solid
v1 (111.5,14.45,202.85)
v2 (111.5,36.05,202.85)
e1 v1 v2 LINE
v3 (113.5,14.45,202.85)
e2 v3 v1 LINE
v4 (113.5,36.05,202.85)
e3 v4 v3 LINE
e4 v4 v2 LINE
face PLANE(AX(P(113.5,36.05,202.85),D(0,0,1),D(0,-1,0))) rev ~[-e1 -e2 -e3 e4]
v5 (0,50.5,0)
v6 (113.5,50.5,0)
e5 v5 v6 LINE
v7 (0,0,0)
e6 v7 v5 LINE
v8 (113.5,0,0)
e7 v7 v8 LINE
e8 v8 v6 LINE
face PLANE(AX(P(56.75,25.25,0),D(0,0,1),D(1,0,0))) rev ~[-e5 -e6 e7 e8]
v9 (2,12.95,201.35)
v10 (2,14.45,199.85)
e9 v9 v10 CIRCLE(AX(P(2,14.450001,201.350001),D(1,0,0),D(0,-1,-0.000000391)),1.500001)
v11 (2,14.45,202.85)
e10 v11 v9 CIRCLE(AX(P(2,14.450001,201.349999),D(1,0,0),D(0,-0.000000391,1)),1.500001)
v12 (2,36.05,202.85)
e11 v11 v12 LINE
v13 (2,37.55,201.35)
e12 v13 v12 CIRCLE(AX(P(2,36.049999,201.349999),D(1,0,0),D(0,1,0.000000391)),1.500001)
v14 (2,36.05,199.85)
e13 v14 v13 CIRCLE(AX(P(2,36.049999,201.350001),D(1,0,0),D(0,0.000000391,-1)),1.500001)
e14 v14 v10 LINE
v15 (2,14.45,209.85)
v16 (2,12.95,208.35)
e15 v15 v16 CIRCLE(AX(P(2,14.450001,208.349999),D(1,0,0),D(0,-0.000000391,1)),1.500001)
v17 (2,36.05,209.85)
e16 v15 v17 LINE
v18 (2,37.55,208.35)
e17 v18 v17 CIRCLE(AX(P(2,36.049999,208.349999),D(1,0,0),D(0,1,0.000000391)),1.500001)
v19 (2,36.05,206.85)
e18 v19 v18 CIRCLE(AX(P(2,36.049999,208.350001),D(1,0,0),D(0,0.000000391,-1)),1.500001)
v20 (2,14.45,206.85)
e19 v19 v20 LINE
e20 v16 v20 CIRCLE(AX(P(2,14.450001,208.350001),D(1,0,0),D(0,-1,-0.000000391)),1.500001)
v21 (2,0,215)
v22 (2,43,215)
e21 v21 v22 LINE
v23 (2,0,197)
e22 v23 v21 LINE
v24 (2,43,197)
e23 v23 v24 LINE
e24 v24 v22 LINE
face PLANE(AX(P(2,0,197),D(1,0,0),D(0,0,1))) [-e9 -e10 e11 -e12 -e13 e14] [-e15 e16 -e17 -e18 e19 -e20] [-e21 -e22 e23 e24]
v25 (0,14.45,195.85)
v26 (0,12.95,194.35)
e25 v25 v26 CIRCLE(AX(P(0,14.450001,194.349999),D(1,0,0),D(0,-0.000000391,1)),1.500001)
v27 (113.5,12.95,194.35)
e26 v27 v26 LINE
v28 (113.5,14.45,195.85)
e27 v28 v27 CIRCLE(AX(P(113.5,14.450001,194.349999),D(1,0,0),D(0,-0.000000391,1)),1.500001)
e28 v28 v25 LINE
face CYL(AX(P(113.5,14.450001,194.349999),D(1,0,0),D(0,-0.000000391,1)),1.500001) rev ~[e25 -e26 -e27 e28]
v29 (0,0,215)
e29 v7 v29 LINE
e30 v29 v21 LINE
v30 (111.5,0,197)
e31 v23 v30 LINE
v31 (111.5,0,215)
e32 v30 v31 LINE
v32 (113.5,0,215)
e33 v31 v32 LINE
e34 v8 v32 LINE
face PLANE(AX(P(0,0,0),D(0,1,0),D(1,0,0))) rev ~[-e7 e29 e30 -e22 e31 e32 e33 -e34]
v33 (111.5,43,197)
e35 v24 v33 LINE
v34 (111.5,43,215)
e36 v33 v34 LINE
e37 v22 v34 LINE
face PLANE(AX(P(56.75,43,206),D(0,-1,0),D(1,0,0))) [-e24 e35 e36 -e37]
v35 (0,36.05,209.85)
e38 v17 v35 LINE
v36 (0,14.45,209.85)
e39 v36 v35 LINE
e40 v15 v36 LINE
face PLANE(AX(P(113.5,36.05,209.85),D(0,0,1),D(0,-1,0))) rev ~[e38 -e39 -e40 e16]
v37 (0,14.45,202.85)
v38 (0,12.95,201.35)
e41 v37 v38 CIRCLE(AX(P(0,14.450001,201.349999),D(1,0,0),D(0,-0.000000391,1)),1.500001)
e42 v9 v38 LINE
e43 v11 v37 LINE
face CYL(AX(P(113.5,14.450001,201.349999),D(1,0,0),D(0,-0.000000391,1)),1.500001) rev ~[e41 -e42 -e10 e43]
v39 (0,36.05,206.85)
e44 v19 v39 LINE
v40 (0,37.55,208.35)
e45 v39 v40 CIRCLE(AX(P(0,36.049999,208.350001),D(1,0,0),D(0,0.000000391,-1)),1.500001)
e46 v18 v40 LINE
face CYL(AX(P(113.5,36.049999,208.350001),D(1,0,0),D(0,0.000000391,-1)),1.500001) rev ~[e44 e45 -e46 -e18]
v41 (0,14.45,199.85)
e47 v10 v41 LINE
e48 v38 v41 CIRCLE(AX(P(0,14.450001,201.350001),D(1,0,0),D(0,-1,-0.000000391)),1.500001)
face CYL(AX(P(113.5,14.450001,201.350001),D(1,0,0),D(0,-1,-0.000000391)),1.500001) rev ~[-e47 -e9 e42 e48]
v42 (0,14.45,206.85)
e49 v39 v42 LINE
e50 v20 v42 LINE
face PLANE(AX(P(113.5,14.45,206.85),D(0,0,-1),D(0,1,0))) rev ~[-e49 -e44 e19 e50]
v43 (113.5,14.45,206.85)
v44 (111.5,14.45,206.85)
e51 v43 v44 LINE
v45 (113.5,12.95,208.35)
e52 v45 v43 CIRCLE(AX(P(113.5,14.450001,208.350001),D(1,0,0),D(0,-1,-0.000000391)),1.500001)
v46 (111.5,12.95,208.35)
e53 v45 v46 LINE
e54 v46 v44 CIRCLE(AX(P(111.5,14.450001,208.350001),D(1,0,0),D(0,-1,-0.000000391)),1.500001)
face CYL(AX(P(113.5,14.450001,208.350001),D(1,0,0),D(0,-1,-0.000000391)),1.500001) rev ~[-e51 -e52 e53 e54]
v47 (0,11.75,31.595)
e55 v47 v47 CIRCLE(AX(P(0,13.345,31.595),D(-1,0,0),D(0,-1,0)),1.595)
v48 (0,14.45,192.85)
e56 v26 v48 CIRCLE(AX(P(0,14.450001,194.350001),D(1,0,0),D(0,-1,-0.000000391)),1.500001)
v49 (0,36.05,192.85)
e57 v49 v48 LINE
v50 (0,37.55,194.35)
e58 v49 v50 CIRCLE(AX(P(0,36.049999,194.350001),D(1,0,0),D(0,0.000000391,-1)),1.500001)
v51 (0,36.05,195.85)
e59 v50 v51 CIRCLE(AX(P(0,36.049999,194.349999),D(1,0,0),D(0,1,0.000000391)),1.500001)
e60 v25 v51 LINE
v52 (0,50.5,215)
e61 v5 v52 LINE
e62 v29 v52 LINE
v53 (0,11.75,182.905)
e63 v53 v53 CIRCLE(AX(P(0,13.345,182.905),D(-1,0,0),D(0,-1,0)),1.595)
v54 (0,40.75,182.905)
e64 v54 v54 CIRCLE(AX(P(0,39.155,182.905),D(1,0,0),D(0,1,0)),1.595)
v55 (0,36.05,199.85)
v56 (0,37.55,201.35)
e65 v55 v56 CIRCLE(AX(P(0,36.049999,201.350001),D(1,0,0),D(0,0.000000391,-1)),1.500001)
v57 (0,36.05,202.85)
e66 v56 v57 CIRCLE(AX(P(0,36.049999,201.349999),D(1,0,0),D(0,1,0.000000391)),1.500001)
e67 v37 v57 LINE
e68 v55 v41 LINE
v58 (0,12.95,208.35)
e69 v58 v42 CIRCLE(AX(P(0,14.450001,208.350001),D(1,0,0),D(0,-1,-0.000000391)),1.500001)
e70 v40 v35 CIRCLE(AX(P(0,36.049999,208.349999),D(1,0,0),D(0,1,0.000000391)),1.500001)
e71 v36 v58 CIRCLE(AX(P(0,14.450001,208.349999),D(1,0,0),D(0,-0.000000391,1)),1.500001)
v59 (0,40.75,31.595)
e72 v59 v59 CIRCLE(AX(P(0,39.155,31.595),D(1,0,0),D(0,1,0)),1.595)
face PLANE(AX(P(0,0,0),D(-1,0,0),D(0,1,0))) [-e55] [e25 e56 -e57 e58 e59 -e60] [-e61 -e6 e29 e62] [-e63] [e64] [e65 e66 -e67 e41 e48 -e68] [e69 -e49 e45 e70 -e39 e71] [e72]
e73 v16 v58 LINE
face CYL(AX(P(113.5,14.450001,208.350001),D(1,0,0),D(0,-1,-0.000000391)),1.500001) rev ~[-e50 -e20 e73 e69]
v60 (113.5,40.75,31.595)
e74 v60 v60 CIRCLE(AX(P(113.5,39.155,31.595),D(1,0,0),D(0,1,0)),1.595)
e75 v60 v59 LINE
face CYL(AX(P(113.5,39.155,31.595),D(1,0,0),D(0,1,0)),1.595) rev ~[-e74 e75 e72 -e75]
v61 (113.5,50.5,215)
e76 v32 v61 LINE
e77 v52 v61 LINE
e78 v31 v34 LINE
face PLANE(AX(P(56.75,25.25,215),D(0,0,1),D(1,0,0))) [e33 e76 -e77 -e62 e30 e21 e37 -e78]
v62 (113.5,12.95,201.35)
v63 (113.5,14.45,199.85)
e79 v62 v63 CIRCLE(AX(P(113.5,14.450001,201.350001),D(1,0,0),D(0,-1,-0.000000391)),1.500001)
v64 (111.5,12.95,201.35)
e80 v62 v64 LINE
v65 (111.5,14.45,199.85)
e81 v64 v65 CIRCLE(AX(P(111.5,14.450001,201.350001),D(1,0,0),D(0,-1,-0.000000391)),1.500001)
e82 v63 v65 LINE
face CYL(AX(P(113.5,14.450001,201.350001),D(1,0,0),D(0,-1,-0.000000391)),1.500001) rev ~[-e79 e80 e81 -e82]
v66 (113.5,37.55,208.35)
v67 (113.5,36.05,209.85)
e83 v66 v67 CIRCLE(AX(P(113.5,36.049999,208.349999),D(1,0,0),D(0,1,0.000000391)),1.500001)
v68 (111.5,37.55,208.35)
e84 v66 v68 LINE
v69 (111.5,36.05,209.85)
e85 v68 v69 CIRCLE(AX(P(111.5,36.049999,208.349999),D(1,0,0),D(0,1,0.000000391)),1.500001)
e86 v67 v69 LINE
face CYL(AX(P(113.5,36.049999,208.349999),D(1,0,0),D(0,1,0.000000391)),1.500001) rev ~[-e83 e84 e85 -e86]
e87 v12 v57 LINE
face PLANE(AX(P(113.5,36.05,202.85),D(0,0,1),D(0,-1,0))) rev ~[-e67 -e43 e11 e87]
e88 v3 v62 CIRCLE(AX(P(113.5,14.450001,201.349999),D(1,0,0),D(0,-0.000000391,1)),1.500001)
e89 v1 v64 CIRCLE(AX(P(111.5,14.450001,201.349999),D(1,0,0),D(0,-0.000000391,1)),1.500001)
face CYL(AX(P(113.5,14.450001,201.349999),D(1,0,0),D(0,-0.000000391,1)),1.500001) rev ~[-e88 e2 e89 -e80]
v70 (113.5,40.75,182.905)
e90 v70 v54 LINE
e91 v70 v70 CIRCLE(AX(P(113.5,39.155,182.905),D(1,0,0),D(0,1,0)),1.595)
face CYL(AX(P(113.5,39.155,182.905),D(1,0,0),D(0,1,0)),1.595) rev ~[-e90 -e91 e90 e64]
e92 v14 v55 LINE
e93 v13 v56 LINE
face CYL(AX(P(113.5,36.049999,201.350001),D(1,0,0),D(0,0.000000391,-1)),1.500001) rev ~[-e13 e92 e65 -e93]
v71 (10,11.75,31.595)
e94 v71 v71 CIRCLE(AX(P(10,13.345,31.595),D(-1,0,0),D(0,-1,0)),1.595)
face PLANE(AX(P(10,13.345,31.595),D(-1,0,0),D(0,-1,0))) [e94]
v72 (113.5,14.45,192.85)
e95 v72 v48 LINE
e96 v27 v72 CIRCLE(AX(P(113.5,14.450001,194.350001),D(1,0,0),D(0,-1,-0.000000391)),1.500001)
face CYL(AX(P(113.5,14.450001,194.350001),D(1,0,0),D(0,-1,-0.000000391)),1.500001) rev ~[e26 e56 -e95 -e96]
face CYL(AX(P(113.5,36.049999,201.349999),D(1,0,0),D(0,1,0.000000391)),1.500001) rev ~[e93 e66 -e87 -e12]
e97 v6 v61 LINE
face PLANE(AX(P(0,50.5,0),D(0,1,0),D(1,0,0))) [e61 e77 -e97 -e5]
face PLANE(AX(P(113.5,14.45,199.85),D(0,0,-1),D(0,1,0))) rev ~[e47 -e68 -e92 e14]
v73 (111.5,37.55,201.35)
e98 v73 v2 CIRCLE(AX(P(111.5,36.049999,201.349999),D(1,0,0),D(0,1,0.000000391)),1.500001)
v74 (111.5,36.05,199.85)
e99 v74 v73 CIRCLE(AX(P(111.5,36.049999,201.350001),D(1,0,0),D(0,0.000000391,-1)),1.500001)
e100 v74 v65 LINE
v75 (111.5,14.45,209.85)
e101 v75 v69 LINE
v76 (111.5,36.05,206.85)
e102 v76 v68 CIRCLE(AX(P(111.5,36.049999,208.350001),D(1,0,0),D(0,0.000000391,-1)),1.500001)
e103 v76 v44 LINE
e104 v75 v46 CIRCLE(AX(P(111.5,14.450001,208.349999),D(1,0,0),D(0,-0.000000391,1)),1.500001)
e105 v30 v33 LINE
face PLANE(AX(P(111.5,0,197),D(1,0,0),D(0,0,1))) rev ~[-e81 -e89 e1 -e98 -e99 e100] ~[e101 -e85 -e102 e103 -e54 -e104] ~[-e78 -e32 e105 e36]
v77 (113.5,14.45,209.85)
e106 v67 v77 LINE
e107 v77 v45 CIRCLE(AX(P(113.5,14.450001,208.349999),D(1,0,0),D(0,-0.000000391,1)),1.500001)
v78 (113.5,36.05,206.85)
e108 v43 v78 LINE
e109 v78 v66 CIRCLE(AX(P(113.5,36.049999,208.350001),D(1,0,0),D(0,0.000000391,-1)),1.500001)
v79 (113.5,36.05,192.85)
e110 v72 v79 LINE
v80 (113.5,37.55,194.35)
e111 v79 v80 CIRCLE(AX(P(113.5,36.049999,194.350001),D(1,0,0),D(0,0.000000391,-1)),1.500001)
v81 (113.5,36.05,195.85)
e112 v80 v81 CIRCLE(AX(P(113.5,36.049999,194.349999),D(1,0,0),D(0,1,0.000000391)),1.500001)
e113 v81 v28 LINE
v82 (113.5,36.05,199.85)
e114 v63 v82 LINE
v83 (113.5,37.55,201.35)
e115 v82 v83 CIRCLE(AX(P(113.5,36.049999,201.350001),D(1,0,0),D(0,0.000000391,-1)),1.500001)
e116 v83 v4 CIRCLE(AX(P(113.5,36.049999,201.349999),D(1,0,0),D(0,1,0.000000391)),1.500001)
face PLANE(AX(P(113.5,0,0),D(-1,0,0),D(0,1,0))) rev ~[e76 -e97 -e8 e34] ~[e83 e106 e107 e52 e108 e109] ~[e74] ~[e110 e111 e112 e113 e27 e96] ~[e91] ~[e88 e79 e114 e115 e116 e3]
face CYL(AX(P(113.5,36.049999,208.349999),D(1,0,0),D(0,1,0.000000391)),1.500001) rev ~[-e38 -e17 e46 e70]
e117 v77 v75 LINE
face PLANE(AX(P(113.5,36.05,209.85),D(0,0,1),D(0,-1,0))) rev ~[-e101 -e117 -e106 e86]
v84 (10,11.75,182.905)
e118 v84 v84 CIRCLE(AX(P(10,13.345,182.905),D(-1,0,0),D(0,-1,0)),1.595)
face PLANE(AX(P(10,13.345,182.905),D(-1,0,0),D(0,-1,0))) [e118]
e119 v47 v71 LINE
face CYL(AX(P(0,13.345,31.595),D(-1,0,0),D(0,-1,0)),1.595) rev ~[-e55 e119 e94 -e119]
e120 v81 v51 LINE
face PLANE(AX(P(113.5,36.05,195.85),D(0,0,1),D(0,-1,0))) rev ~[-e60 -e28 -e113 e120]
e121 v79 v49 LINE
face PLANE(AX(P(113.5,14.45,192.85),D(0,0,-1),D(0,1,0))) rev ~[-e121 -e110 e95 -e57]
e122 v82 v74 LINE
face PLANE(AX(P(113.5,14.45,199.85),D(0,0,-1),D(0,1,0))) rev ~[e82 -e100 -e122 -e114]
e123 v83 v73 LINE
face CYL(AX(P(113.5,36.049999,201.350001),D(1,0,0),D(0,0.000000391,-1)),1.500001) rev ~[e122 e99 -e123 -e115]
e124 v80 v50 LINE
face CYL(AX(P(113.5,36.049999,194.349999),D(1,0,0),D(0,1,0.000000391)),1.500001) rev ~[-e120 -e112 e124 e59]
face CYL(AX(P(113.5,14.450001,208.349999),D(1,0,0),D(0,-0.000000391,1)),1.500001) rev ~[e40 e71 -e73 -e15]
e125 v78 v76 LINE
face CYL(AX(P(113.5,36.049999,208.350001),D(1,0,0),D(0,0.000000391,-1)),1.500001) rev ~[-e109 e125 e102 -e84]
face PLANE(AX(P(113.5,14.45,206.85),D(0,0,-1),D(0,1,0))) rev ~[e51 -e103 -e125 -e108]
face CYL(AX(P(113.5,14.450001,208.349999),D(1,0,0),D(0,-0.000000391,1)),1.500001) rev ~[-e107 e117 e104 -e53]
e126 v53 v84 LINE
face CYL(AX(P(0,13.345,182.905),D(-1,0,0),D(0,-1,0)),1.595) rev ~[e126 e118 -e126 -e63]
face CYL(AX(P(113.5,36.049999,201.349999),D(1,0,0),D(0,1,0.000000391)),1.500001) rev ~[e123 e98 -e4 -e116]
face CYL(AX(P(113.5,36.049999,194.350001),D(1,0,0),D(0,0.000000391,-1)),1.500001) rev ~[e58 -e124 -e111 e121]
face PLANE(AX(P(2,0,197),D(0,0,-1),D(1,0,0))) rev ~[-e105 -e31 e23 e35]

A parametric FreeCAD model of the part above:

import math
import FreeCAD as App
import Part
import Sketcher
from FreeCAD import Vector
Q = App.Units.Quantity

doc = App.newDocument("Part")
body = doc.addObject("PartDesign::Body", "Body")

# Sketch on XY plane
sketch1 = doc.addObject("Sketcher::SketchObject", "Sketch")
body.addObject(sketch1)
sketch1.AttachmentSupport = (doc.XY_Plane, [""])
sketch1.MapMode = "FlatFace"
sketch1.addGeometry(Part.LineSegment(Vector(0, 50, 0), Vector(0, 0, 0)), False)
sketch1.addGeometry(Part.LineSegment(Vector(0, 0, 0), Vector(114, 0, 0)), False)
sketch1.addGeometry(Part.LineSegment(Vector(114, 0, 0), Vector(114, 50, 0)), False)
sketch1.addGeometry(Part.LineSegment(Vector(114, 50, 0), Vector(0, 50, 0)), False)
sketch1.addConstraint(Sketcher.Constraint("Coincident", 0, 2, 1, 1))
sketch1.addConstraint(Sketcher.Constraint("Coincident", 1, 2, 2, 1))
sketch1.addConstraint(Sketcher.Constraint("Coincident", 2, 2, 3, 1))
sketch1.addConstraint(Sketcher.Constraint("Coincident", 3, 2, 0, 1))
sketch1.addConstraint(Sketcher.Constraint("Vertical", 0))
sketch1.addConstraint(Sketcher.Constraint("Horizontal", 1))
sketch1.addConstraint(Sketcher.Constraint("Vertical", 2))
sketch1.addConstraint(Sketcher.Constraint("Horizontal", 3))
sketch1.addConstraint(Sketcher.Constraint("Coincident", 0, 2, -1, 1))
sketch1.addConstraint(Sketcher.Constraint("DistanceX", 1, 1, 1, 2, Q("113.5 mm")))
sketch1.addConstraint(Sketcher.Constraint("DistanceY", 0, 2, 0, 1, Q("50.5 mm")))
pad1 = doc.addObject("PartDesign::Pad", "Pad")
body.addObject(pad1)
pad1.Profile = sketch1
pad1.Length = 215

# Sketch on YZ plane
sketch2 = doc.addObject("Sketcher::SketchObject", "Sketch001")
body.addObject(sketch2)
sketch2.AttachmentSupport = (doc.YZ_Plane, [""])
sketch2.MapMode = "FlatFace"
sketch2.AttachmentOffset = App.Placement(Vector(0, 0, 113.5), App.Rotation())
sketch2.addGeometry(Part.LineSegment(Vector(36, 209.8, 0), Vector(14.4, 209.8, 0)), False)
sketch2.addGeometry(Part.ArcOfCircle(Part.Circle(Vector(14.5, 208.3, 0), Vector(0, 0, 1), 1.5), math.radians(90), math.radians(180)), False)
sketch2.addGeometry(Part.ArcOfCircle(Part.Circle(Vector(14.5, 208.4, 0), Vector(0, 0, 1), 1.5), math.radians(-180), math.radians(-90)), False)
sketch2.addGeometry(Part.LineSegment(Vector(14.4, 206.8, 0), Vector(36, 206.8, 0)), False)
sketch2.addGeometry(Part.ArcOfCircle(Part.Circle(Vector(36, 208.4, 0), Vector(0, 0, 1), 1.5), math.radians(-90), math.radians(0)), False)
sketch2.addGeometry(Part.ArcOfCircle(Part.Circle(Vector(36, 208.3, 0), Vector(0, 0, 1), 1.5), math.radians(0), math.radians(90)), False)
sketch2.addGeometry(Part.ArcOfCircle(Part.Circle(Vector(14.5, 201.4, 0), Vector(0, 0, 1), 1.5), math.radians(-180), math.radians(-90)), False)
sketch2.addGeometry(Part.LineSegment(Vector(14.4, 199.8, 0), Vector(36, 199.8, 0)), False)
sketch2.addGeometry(Part.ArcOfCircle(Part.Circle(Vector(36, 201.4, 0), Vector(0, 0, 1), 1.5), math.radians(-90), math.radians(0)), False)
sketch2.addGeometry(Part.ArcOfCircle(Part.Circle(Vector(36, 201.3, 0), Vector(0, 0, 1), 1.5), math.radians(0), math.radians(90)), False)
sketch2.addGeometry(Part.LineSegment(Vector(36, 202.8, 0), Vector(14.4, 202.8, 0)), False)
sketch2.addGeometry(Part.ArcOfCircle(Part.Circle(Vector(14.5, 201.3, 0), Vector(0, 0, 1), 1.5), math.radians(90), math.radians(180)), False)
sketch2.addGeometry(Part.ArcOfCircle(Part.Circle(Vector(14.5, 194.4, 0), Vector(0, 0, 1), 1.5), math.radians(-180), math.radians(-90)), False)
sketch2.addGeometry(Part.LineSegment(Vector(14.4, 192.8, 0), Vector(36, 192.8, 0)), False)
sketch2.addGeometry(Part.ArcOfCircle(Part.Circle(Vector(36, 194.4, 0), Vector(0, 0, 1), 1.5), math.radians(-90), math.radians(0)), False)
sketch2.addGeometry(Part.ArcOfCircle(Part.Circle(Vector(36, 194.3, 0), Vector(0, 0, 1), 1.5), math.radians(0), math.radians(90)), False)
sketch2.addGeometry(Part.LineSegment(Vector(36, 195.8, 0), Vector(14.4, 195.8, 0)), False)
sketch2.addGeometry(Part.ArcOfCircle(Part.Circle(Vector(14.5, 194.3, 0), Vector(0, 0, 1), 1.5), math.radians(90), math.radians(180)), False)
sketch2.addConstraint(Sketcher.Constraint("Tangent", 0, 2, 1, 1))
sketch2.addConstraint(Sketcher.Constraint("Tangent", 1, 2, 2, 1))
sketch2.addConstraint(Sketcher.Constraint("Tangent", 2, 2, 3, 1))
sketch2.addConstraint(Sketcher.Constraint("Tangent", 3, 2, 4, 1))
sketch2.addConstraint(Sketcher.Constraint("Tangent", 4, 2, 5, 1))
sketch2.addConstraint(Sketcher.Constraint("Tangent", 5, 2, 0, 1))
sketch2.addConstraint(Sketcher.Constraint("Tangent", 6, 2, 7, 1))
sketch2.addConstraint(Sketcher.Constraint("Tangent", 7, 2, 8, 1))
sketch2.addConstraint(Sketcher.Constraint("Tangent", 8, 2, 9, 1))
sketch2.addConstraint(Sketcher.Constraint("Tangent", 9, 2, 10, 1))
sketch2.addConstraint(Sketcher.Constraint("Tangent", 10, 2, 11, 1))
sketch2.addConstraint(Sketcher.Constraint("Tangent", 11, 2, 6, 1))
sketch2.addConstraint(Sketcher.Constraint("Tangent", 12, 2, 13, 1))
sketch2.addConstraint(Sketcher.Constraint("Tangent", 13, 2, 14, 1))
sketch2.addConstraint(Sketcher.Constraint("Tangent", 14, 2, 15, 1))
sketch2.addConstraint(Sketcher.Constraint("Tangent", 15, 2, 16, 1))
sketch2.addConstraint(Sketcher.Constraint("Tangent", 16, 2, 17, 1))
sketch2.addConstraint(Sketcher.Constraint("Tangent", 17, 2, 12, 1))
sketch2.addConstraint(Sketcher.Constraint("Horizontal", 0))
sketch2.addConstraint(Sketcher.Constraint("Horizontal", 3))
sketch2.addConstraint(Sketcher.Constraint("Horizontal", 7))
sketch2.addConstraint(Sketcher.Constraint("Horizontal", 10))
sketch2.addConstraint(Sketcher.Constraint("Horizontal", 13))
sketch2.addConstraint(Sketcher.Constraint("Horizontal", 16))
sketch2.addConstraint(Sketcher.Constraint("Equal", 1, 2))
sketch2.addConstraint(Sketcher.Constraint("Equal", 2, 4))
sketch2.addConstraint(Sketcher.Constraint("Equal", 5, 6))
sketch2.addConstraint(Sketcher.Constraint("Equal", 6, 8))
sketch2.addConstraint(Sketcher.Constraint("Equal", 8, 9))
sketch2.addConstraint(Sketcher.Constraint("Equal", 11, 12))
sketch2.addConstraint(Sketcher.Constraint("Equal", 12, 14))
sketch2.addConstraint(Sketcher.Constraint("Equal", 14, 15))
sketch2.addConstraint(Sketcher.Constraint("Horizontal", 5, 3, 1, 2))
sketch2.addConstraint(Sketcher.Constraint("Horizontal", 1, 2, 4, 2))
sketch2.addConstraint(Sketcher.Constraint("Horizontal", 11, 3, 8, 2))
sketch2.addConstraint(Sketcher.Constraint("Horizontal", 8, 2, 11, 2))
sketch2.addConstraint(Sketcher.Constraint("Horizontal", 17, 3, 14, 2))
sketch2.addConstraint(Sketcher.Constraint("Horizontal", 14, 2, 17, 2))
sketch2.addConstraint(Sketcher.Constraint("Vertical", 2, 3, 6, 3))
sketch2.addConstraint(Sketcher.Constraint("Vertical", 5, 3, 8, 3))
sketch2.addConstraint(Sketcher.Constraint("Vertical", 11, 3, 12, 3))
sketch2.addConstraint(Sketcher.Constraint("Vertical", 9, 3, 14, 3))
sketch2.addConstraint(Sketcher.Constraint("Radius", 1, Q("1.500001 mm")))
sketch2.addConstraint(Sketcher.Constraint("DistanceX", 0, 2, 0, 1, Q("21.6 mm")))
sketch2.addConstraint(Sketcher.Constraint("DistanceY", 6, 3, 1, 3, Q("6.999999 mm")))
sketch2.addConstraint(Sketcher.Constraint("DistanceY", 12, 3, 11, 3, Q("6.999999 mm")))
sketch2.addConstraint(Sketcher.Constraint("DistanceX", -1, 1, 1, 3, Q("14.450001 mm")))
sketch2.addConstraint(Sketcher.Constraint("DistanceY", -1, 1, 1, 3, Q("208.349999 mm")))
pocket1 = doc.addObject("PartDesign::Pocket", "Pocket")
body.addObject(pocket1)
pocket1.Profile = sketch2
pocket1.Type = "ThroughAll"

# Sketch on XZ plane
sketch3 = doc.addObject("Sketcher::SketchObject", "Sketch002")
body.addObject(sketch3)
sketch3.AttachmentSupport = (doc.XZ_Plane, [""])
sketch3.MapMode = "FlatFace"
sketch3.addGeometry(Part.LineSegment(Vector(2, 215, 0), Vector(2, 197, 0)), False)
sketch3.addGeometry(Part.LineSegment(Vector(2, 197, 0), Vector(112, 197, 0)), False)
sketch3.addGeometry(Part.LineSegment(Vector(112, 197, 0), Vector(112, 215, 0)), False)
sketch3.addGeometry(Part.LineSegment(Vector(112, 215, 0), Vector(2, 215, 0)), False)
sketch3.addConstraint(Sketcher.Constraint("Coincident", 0, 2, 1, 1))
sketch3.addConstraint(Sketcher.Constraint("Coincident", 1, 2, 2, 1))
sketch3.addConstraint(Sketcher.Constraint("Coincident", 2, 2, 3, 1))
sketch3.addConstraint(Sketcher.Constraint("Coincident", 3, 2, 0, 1))
sketch3.addConstraint(Sketcher.Constraint("Vertical", 0))
sketch3.addConstraint(Sketcher.Constraint("Horizontal", 1))
sketch3.addConstraint(Sketcher.Constraint("Vertical", 2))
sketch3.addConstraint(Sketcher.Constraint("Horizontal", 3))
sketch3.addConstraint(Sketcher.Constraint("DistanceY", 0, 2, 0, 1, Q("18 mm")))
sketch3.addConstraint(Sketcher.Constraint("DistanceX", 1, 1, 1, 2, Q("109.5 mm")))
sketch3.addConstraint(Sketcher.Constraint("DistanceX", -1, 1, 0, 2, Q("2 mm")))
sketch3.addConstraint(Sketcher.Constraint("DistanceY", -1, 1, 0, 2, Q("197 mm")))
pocket2 = doc.addObject("PartDesign::Pocket", "Pocket001")
body.addObject(pocket2)
pocket2.Profile = sketch3
pocket2.Length = 43

# Sketch on YZ plane
sketch4 = doc.addObject("Sketcher::SketchObject", "Sketch003")
body.addObject(sketch4)
sketch4.AttachmentSupport = (doc.YZ_Plane, [""])
sketch4.MapMode = "FlatFace"
sketch4.AttachmentOffset = App.Placement(Vector(0, 0, 113.5), App.Rotation())
sketch4.addGeometry(Part.Circle(Vector(39.2, 31.6, 0), Vector(0, 0, 1), 1.6), False)
sketch4.addGeometry(Part.Circle(Vector(39.2, 182.9, 0), Vector(0, 0, 1), 1.6), False)
sketch4.addConstraint(Sketcher.Constraint("Equal", 0, 1))
sketch4.addConstraint(Sketcher.Constraint("Vertical", 0, 3, 1, 3))
sketch4.addConstraint(Sketcher.Constraint("Diameter", 0, Q("3.19 mm")))
sketch4.addConstraint(Sketcher.Constraint("DistanceY", 0, 3, 1, 3, Q("151.31 mm")))
sketch4.addConstraint(Sketcher.Constraint("DistanceX", -1, 1, 0, 3, Q("39.155 mm")))
sketch4.addConstraint(Sketcher.Constraint("DistanceY", -1, 1, 0, 3, Q("31.595 mm")))
pocket3 = doc.addObject("PartDesign::Pocket", "Pocket002")
body.addObject(pocket3)
pocket3.Profile = sketch4
pocket3.Type = "ThroughAll"

# Sketch on YZ plane
sketch5 = doc.addObject("Sketcher::SketchObject", "Sketch004")
body.addObject(sketch5)
sketch5.AttachmentSupport = (doc.YZ_Plane, [""])
sketch5.MapMode = "FlatFace"
sketch5.addGeometry(Part.Circle(Vector(13.3, 182.9, 0), Vector(0, 0, 1), 1.6), False)
sketch5.addGeometry(Part.Circle(Vector(13.3, 31.6, 0), Vector(0, 0, 1), 1.6), False)
sketch5.addConstraint(Sketcher.Constraint("Equal", 0, 1))
sketch5.addConstraint(Sketcher.Constraint("Vertical", 0, 3, 1, 3))
sketch5.addConstraint(Sketcher.Constraint("Diameter", 0, Q("3.19 mm")))
sketch5.addConstraint(Sketcher.Constraint("DistanceY", 1, 3, 0, 3, Q("151.31 mm")))
sketch5.addConstraint(Sketcher.Constraint("DistanceX", -1, 1, 0, 3, Q("13.345 mm")))
sketch5.addConstraint(Sketcher.Constraint("DistanceY", -1, 1, 0, 3, Q("182.905 mm")))
pocket4 = doc.addObject("PartDesign::Pocket", "Pocket003")
body.addObject(pocket4)
pocket4.Profile = sketch5
pocket4.Length = 10
pocket4.Reversed = True

doc.recompute()
